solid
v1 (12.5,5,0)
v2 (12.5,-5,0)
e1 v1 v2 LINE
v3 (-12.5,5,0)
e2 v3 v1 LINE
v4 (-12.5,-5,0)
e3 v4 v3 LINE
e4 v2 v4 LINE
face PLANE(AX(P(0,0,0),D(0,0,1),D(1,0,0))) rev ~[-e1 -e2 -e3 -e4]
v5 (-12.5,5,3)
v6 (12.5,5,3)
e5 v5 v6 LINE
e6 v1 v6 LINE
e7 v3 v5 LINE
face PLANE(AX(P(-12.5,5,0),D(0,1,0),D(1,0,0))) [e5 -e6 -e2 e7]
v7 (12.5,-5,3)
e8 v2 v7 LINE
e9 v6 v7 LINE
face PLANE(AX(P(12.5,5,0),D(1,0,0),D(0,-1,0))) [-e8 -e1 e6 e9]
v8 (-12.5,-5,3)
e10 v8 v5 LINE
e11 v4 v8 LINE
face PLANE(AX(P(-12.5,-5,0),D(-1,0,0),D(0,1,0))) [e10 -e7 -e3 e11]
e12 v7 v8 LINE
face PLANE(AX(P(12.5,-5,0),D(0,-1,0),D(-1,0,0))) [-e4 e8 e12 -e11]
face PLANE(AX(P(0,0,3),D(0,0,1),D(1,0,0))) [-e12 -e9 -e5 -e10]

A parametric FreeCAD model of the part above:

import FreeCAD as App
import Part
import Sketcher

doc = App.newDocument("Part")
params = doc.addObject("Spreadsheet::Sheet", "Params")
for row, (alias, value) in enumerate([
    ("sketch1_width", "25 mm"),
    ("sketch1_height", "10 mm"),
    ("pad1_length", "3 mm"),
], start=1):
    params.set(f"A{row}", alias)
    params.set(f"B{row}", "=" + value)
    params.setAlias(f"B{row}", alias)

body = doc.addObject("PartDesign::Body", "Body")

# Sketch on XY plane
sketch1 = body.newObject("Sketcher::SketchObject", "Sketch")
sketch1.AttachmentSupport = (doc.getObject("XY_Plane"), [""])
sketch1.MapMode = "FlatFace"
sketch1.addGeometry(Part.LineSegment(App.Vector(12, 5, 0), App.Vector(-12, 5, 0)), False)
sketch1.addGeometry(Part.LineSegment(App.Vector(-12, 5, 0), App.Vector(-12, -5, 0)), False)
sketch1.addGeometry(Part.LineSegment(App.Vector(-12, -5, 0), App.Vector(12, -5, 0)), False)
sketch1.addGeometry(Part.LineSegment(App.Vector(12, -5, 0), App.Vector(12, 5, 0)), False)
sketch1.addConstraint(Sketcher.Constraint("Coincident", 0, 2, 1, 1))
sketch1.addConstraint(Sketcher.Constraint("Coincident", 1, 2, 2, 1))
sketch1.addConstraint(Sketcher.Constraint("Coincident", 2, 2, 3, 1))
sketch1.addConstraint(Sketcher.Constraint("Coincident", 3, 2, 0, 1))
sketch1.addConstraint(Sketcher.Constraint("Horizontal", 0))
sketch1.addConstraint(Sketcher.Constraint("Vertical", 1))
sketch1.addConstraint(Sketcher.Constraint("Horizontal", 2))
sketch1.addConstraint(Sketcher.Constraint("Vertical", 3))
sketch1.addConstraint(Sketcher.Constraint("Symmetric", 0, 2, 2, 2, -1, 1))
sketch1.addConstraint(Sketcher.Constraint("DistanceX", 0, 2, 0, 1, 25.0))
sketch1.addConstraint(Sketcher.Constraint("DistanceY", 1, 2, 1, 1, 10.0))
sketch1.setExpression("Constraints[9]", "Params.sketch1_width")
sketch1.setExpression("Constraints[10]", "Params.sketch1_height")
pad1 = body.newObject("PartDesign::Pad", "Pad")
pad1.Profile = sketch1
pad1.setExpression("Length", "Params.pad1_length")

doc.recompute()
